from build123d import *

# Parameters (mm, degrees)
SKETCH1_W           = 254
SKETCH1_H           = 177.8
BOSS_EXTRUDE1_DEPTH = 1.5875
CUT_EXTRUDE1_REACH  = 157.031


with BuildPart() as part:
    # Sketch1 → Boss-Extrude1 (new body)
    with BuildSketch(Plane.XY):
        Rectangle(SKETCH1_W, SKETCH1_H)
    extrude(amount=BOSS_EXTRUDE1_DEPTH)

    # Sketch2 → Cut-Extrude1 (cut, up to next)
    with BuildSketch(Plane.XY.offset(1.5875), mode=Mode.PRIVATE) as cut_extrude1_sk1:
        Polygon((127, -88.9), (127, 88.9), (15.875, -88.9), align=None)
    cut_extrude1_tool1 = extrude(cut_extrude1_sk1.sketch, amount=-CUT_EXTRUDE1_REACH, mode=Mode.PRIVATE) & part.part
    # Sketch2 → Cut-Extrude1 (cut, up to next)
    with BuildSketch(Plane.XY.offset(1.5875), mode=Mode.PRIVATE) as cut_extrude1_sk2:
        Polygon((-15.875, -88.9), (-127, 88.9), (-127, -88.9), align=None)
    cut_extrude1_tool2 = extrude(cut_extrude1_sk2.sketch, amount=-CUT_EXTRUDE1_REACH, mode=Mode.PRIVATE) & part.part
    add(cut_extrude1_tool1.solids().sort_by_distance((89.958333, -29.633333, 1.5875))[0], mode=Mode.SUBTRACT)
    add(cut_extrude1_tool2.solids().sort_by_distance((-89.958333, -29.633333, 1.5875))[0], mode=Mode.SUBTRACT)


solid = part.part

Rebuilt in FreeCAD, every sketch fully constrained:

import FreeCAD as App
import Part
import Sketcher
from FreeCAD import Vector
Q = App.Units.Quantity


def add_polygon(sketch, points):
    """Adds a closed chain of lines whose ends are joined by coincident constraints."""
    first, n = sketch.GeometryCount, len(points)
    for a, b in zip(points, points[1:] + points[:1]):
        sketch.addGeometry(Part.LineSegment(App.Vector(*a, 0), App.Vector(*b, 0)), False)
    for i in range(n):
        sketch.addConstraint(Sketcher.Constraint("Coincident", first + i, 2, first + (i + 1) % n, 1))

doc = App.newDocument("Part")
body = doc.addObject("PartDesign::Body", "Body")

# Sketch on XY plane
sketch1 = body.newObject("Sketcher::SketchObject", "Sketch")
sketch1.AttachmentSupport = (doc.getObject("XY_Plane"), [""])
sketch1.MapMode = "FlatFace"
add_polygon(sketch1, [(-127, 89), (-127, -89), (127, -89), (127, 89)])  # lines 0-3
sketch1.addConstraint(Sketcher.Constraint("Vertical", 0))
sketch1.addConstraint(Sketcher.Constraint("Horizontal", 1))
sketch1.addConstraint(Sketcher.Constraint("Vertical", 2))
sketch1.addConstraint(Sketcher.Constraint("Horizontal", 3))
sketch1.addConstraint(Sketcher.Constraint("Symmetric", 0, 2, 2, 2, -1, 1))
sketch1.addConstraint(Sketcher.Constraint("DistanceX", 1, 1, 1, 2, Q("10 in")))
sketch1.addConstraint(Sketcher.Constraint("DistanceY", 0, 2, 0, 1, Q("7 in")))
pad1 = body.newObject("PartDesign::Pad", "Pad")
pad1.Profile = sketch1
pad1.Length = Q("0.0625 in")

# Sketch on XY plane
sketch2 = body.newObject("Sketcher::SketchObject", "Sketch001")
sketch2.AttachmentSupport = (doc.getObject("XY_Plane"), [""])
sketch2.MapMode = "FlatFace"
sketch2.AttachmentOffset = App.Placement(Vector(0, 0, 0.0625 * 25.4), App.Rotation())
add_polygon(sketch2, [(127, -89), (127, 89), (16, -89)])  # lines 0-2
sketch2.addConstraint(Sketcher.Constraint("Vertical", 0))
sketch2.addConstraint(Sketcher.Constraint("Horizontal", 2))
sketch2.addConstraint(Sketcher.Constraint("DistanceY", 0, 1, 0, 2, Q("7 in")))
sketch2.addConstraint(Sketcher.Constraint("DistanceX", -1, 1, 0, 2, Q("5 in")))
sketch2.addConstraint(Sketcher.Constraint("DistanceY", -1, 1, 0, 2, Q("3.5 in")))
sketch2.addConstraint(Sketcher.Constraint("DistanceX", 2, 1, 2, 2, Q("4.375 in")))
pocket1 = body.newObject("PartDesign::Pocket", "Pocket")
pocket1.Profile = sketch2
pocket1.Type = "UpToFirst"

# Sketch on XY plane
sketch3 = body.newObject("Sketcher::SketchObject", "Sketch002")
sketch3.AttachmentSupport = (doc.getObject("XY_Plane"), [""])
sketch3.MapMode = "FlatFace"
sketch3.AttachmentOffset = App.Placement(Vector(0, 0, 0.0625 * 25.4), App.Rotation())
add_polygon(sketch3, [(-16, -89), (-127, 89), (-127, -89)])  # lines 0-2
sketch3.addConstraint(Sketcher.Constraint("Vertical", 1))
sketch3.addConstraint(Sketcher.Constraint("Horizontal", 2))
sketch3.addConstraint(Sketcher.Constraint("DistanceY", 1, 2, 1, 1, Q("7 in")))
sketch3.addConstraint(Sketcher.Constraint("DistanceX", 0, 2, -1, 1, Q("5 in")))
sketch3.addConstraint(Sketcher.Constraint("DistanceY", -1, 1, 0, 2, Q("3.5 in")))
sketch3.addConstraint(Sketcher.Constraint("DistanceX", 2, 1, 2, 2, Q("4.375 in")))
pocket2 = body.newObject("PartDesign::Pocket", "Pocket001")
pocket2.Profile = sketch3
pocket2.Type = "UpToFirst"

doc.recompute()
